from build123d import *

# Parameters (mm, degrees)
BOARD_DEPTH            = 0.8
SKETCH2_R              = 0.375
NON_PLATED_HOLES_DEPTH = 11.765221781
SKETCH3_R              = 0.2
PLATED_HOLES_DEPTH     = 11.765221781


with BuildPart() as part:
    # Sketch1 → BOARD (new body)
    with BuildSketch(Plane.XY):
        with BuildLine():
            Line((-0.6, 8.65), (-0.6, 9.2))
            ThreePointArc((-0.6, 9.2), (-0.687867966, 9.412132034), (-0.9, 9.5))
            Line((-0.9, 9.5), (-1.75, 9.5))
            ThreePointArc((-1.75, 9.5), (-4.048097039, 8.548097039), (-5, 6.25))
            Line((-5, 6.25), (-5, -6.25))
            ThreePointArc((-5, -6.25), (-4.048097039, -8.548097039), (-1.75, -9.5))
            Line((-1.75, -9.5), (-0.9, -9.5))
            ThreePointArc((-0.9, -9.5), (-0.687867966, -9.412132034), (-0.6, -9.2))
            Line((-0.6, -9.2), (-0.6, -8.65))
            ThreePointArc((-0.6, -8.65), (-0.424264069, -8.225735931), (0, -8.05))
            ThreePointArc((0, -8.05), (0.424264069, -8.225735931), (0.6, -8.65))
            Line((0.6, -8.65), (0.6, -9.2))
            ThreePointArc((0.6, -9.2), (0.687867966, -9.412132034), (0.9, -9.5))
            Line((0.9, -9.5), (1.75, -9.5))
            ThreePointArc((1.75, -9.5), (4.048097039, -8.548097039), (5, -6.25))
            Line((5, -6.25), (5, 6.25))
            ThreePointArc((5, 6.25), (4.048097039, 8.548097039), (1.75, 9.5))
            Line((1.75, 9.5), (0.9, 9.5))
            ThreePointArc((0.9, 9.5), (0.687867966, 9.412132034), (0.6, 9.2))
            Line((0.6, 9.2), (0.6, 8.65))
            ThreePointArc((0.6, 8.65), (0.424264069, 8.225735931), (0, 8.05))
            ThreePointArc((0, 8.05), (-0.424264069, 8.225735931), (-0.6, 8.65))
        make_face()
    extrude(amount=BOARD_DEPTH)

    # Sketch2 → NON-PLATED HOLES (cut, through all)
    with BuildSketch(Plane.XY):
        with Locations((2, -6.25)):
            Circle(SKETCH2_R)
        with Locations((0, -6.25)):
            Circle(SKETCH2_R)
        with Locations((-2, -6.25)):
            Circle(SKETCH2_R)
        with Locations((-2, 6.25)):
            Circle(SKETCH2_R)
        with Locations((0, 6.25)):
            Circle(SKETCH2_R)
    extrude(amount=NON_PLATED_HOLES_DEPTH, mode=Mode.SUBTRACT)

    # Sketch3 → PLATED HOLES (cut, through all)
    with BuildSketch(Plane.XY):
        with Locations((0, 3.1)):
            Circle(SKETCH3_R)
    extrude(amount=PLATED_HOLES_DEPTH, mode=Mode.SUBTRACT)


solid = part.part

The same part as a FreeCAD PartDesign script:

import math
import FreeCAD as App
import Part
import Sketcher
from FreeCAD import Vector
Q = App.Units.Quantity

doc = App.newDocument("Part")
body = doc.addObject("PartDesign::Body", "Body")

sketch1 = body.newObject("Sketcher::SketchObject", "Sketch")
sketch1.AttachmentSupport = (doc.getObject("XY_Plane"), [""])
sketch1.MapMode = "FlatFace"
sketch1.addGeometry([
    Part.LineSegment(Vector(-0.6, 8.65, 0), Vector(-0.6, 9.2, 0)),
    Part.ArcOfCircle(Part.Circle(Vector(-0.9, 9.2, 0), Vector(0, 0, 1), 0.3), math.radians(0), math.radians(90)),
    Part.LineSegment(Vector(-0.9, 9.5, 0), Vector(-1.75, 9.5, 0)),
    Part.ArcOfCircle(Part.Circle(Vector(-1.75, 6.25, 0), Vector(0, 0, 1), 3.25), math.radians(90), math.radians(180)),
    Part.LineSegment(Vector(-5, 6.25, 0), Vector(-5, -6.25, 0)),
    Part.ArcOfCircle(Part.Circle(Vector(-1.75, -6.25, 0), Vector(0, 0, 1), 3.25), math.radians(180), math.radians(270)),
    Part.LineSegment(Vector(-1.75, -9.5, 0), Vector(-0.9, -9.5, 0)),
    Part.ArcOfCircle(Part.Circle(Vector(-0.9, -9.2, 0), Vector(0, 0, 1), 0.3), math.radians(-90), math.radians(0)),
    Part.LineSegment(Vector(-0.6, -9.2, 0), Vector(-0.6, -8.65, 0)),
    Part.ArcOfCircle(Part.Circle(Vector(0, -8.65, 0), Vector(0, 0, 1), 0.6), math.radians(90), math.radians(180)),
    Part.ArcOfCircle(Part.Circle(Vector(0, -8.65, 0), Vector(0, 0, 1), 0.6), math.radians(0), math.radians(90)),
    Part.LineSegment(Vector(0.6, -8.65, 0), Vector(0.6, -9.2, 0)),
    Part.ArcOfCircle(Part.Circle(Vector(0.9, -9.2, 0), Vector(0, 0, 1), 0.3), math.radians(-180), math.radians(-90)),
    Part.LineSegment(Vector(0.9, -9.5, 0), Vector(1.75, -9.5, 0)),
    Part.ArcOfCircle(Part.Circle(Vector(1.75, -6.25, 0), Vector(0, 0, 1), 3.25), math.radians(-90), math.radians(0)),
    Part.LineSegment(Vector(5, -6.25, 0), Vector(5, 6.25, 0)),
    Part.ArcOfCircle(Part.Circle(Vector(1.75, 6.25, 0), Vector(0, 0, 1), 3.25), math.radians(0), math.radians(90)),
    Part.LineSegment(Vector(1.75, 9.5, 0), Vector(0.9, 9.5, 0)),
    Part.ArcOfCircle(Part.Circle(Vector(0.9, 9.2, 0), Vector(0, 0, 1), 0.3), math.radians(90), math.radians(180)),
    Part.LineSegment(Vector(0.6, 9.2, 0), Vector(0.6, 8.65, 0)),
    Part.ArcOfCircle(Part.Circle(Vector(0, 8.65, 0), Vector(0, 0, 1), 0.6), math.radians(-90), math.radians(0)),
    Part.ArcOfCircle(Part.Circle(Vector(0, 8.65, 0), Vector(0, 0, 1), 0.6), math.radians(180), math.radians(270)),
], False)
sketch1.addConstraint([
    Sketcher.Constraint("Tangent", 0, 2, 1, 1),
    Sketcher.Constraint("Tangent", 1, 2, 2, 1),
    Sketcher.Constraint("Tangent", 2, 2, 3, 1),
    Sketcher.Constraint("Tangent", 3, 2, 4, 1),
    Sketcher.Constraint("Tangent", 4, 2, 5, 1),
    Sketcher.Constraint("Tangent", 5, 2, 6, 1),
    Sketcher.Constraint("Tangent", 6, 2, 7, 1),
    Sketcher.Constraint("Tangent", 7, 2, 8, 1),
    Sketcher.Constraint("Tangent", 8, 2, 9, 2),
    Sketcher.Constraint("Tangent", 9, 1, 10, 2),
    Sketcher.Constraint("Tangent", 10, 1, 11, 1),
    Sketcher.Constraint("Tangent", 11, 2, 12, 1),
    Sketcher.Constraint("Tangent", 12, 2, 13, 1),
    Sketcher.Constraint("Tangent", 13, 2, 14, 1),
    Sketcher.Constraint("Tangent", 14, 2, 15, 1),
    Sketcher.Constraint("Tangent", 15, 2, 16, 1),
    Sketcher.Constraint("Tangent", 16, 2, 17, 1),
    Sketcher.Constraint("Tangent", 17, 2, 18, 1),
    Sketcher.Constraint("Tangent", 18, 2, 19, 1),
    Sketcher.Constraint("Tangent", 19, 2, 20, 2),
    Sketcher.Constraint("Tangent", 20, 1, 21, 2),
    Sketcher.Constraint("Tangent", 21, 1, 0, 1),
    Sketcher.Constraint("Vertical", 0),
    Sketcher.Constraint("Horizontal", 2),
    Sketcher.Constraint("Vertical", 4),
    Sketcher.Constraint("Horizontal", 6),
    Sketcher.Constraint("Vertical", 8),
    Sketcher.Constraint("Vertical", 11),
    Sketcher.Constraint("Horizontal", 13),
    Sketcher.Constraint("Vertical", 15),
    Sketcher.Constraint("Horizontal", 17),
    Sketcher.Constraint("Vertical", 19),
    Sketcher.Constraint("Equal", 3, 5),
    Sketcher.Constraint("Equal", 1, 7),
    Sketcher.Constraint("Equal", 9, 10),
    Sketcher.Constraint("Equal", 7, 12),
    Sketcher.Constraint("Equal", 5, 14),
    Sketcher.Constraint("Equal", 14, 16),
    Sketcher.Constraint("Equal", 12, 18),
    Sketcher.Constraint("Equal", 10, 20),
    Sketcher.Constraint("Equal", 20, 21),
    Sketcher.Constraint("Symmetric", 1, 3, 12, 3, -1, 1),
    Sketcher.Constraint("Symmetric", 5, 3, 16, 3, -1, 1),
    Sketcher.Constraint("Symmetric", 9, 1, 20, 1, -1, 1),
    Sketcher.Constraint("Symmetric", 7, 3, 12, 3, -2),
    Sketcher.Constraint("PointOnObject", 9, 1, -2),
    Sketcher.Constraint("Radius", 1, Q("0.3 mm")),
    Sketcher.Constraint("Radius", 9, Q("0.6 mm")),
    Sketcher.Constraint("Radius", 3, Q("3.25 mm")),
    Sketcher.Constraint("DistanceY", 4, 2, 4, 1, Q("12.5 mm")),
    Sketcher.Constraint("DistanceX", 3, 2, -1, 1, Q("5 mm")),
    Sketcher.Constraint("DistanceY", 0, 1, 0, 2, Q("0.55 mm")),
])
pad1 = body.newObject("PartDesign::Pad", "Pad")
pad1.Profile = sketch1
pad1.Length = 0.8

sketch2 = body.newObject("Sketcher::SketchObject", "Sketch001")
sketch2.AttachmentSupport = (doc.getObject("XY_Plane"), [""])
sketch2.MapMode = "FlatFace"
sketch2.addGeometry([
    Part.Circle(Vector(2, -6.25, 0), Vector(0, 0, 1), 0.38),
    Part.Circle(Vector(0, -6.25, 0), Vector(0, 0, 1), 0.38),
    Part.Circle(Vector(-2, -6.25, 0), Vector(0, 0, 1), 0.38),
    Part.Circle(Vector(-2, 6.25, 0), Vector(0, 0, 1), 0.38),
    Part.Circle(Vector(0, 6.25, 0), Vector(0, 0, 1), 0.38),
], False)
sketch2.addConstraint([
    Sketcher.Constraint("Equal", 0, 1),
    Sketcher.Constraint("Equal", 1, 2),
    Sketcher.Constraint("Equal", 2, 3),
    Sketcher.Constraint("Equal", 3, 4),
    Sketcher.Constraint("Symmetric", 0, 3, 3, 3, -1, 1),
    Sketcher.Constraint("Symmetric", 1, 3, 4, 3, -1, 1),
    Sketcher.Constraint("Symmetric", 0, 3, 2, 3, -2),
    Sketcher.Constraint("PointOnObject", 1, 3, -2),
    Sketcher.Constraint("Horizontal", 0, 3, 1, 3),
    Sketcher.Constraint("Diameter", 0, Q("0.75 mm")),
    Sketcher.Constraint("DistanceX", -1, 1, 0, 3, Q("2 mm")),
    Sketcher.Constraint("DistanceY", 2, 3, 3, 3, Q("12.5 mm")),
])
pocket1 = body.newObject("PartDesign::Pocket", "Pocket")
pocket1.Profile = sketch2
pocket1.Type = "ThroughAll"
pocket1.Reversed = True

sketch3 = body.newObject("Sketcher::SketchObject", "Sketch002")
sketch3.AttachmentSupport = (doc.getObject("XY_Plane"), [""])
sketch3.MapMode = "FlatFace"
sketch3.addGeometry(Part.Circle(Vector(0, 3.1, 0), Vector(0, 0, 1), 0.2), False)
sketch3.addConstraint([
    Sketcher.Constraint("PointOnObject", 0, 3, -2),
    Sketcher.Constraint("Diameter", 0, Q("0.4 mm")),
    Sketcher.Constraint("DistanceY", -1, 1, 0, 3, Q("3.1 mm")),
])
pocket2 = body.newObject("PartDesign::Pocket", "Pocket001")
pocket2.Profile = sketch3
pocket2.Type = "ThroughAll"
pocket2.Reversed = True

doc.recompute()
